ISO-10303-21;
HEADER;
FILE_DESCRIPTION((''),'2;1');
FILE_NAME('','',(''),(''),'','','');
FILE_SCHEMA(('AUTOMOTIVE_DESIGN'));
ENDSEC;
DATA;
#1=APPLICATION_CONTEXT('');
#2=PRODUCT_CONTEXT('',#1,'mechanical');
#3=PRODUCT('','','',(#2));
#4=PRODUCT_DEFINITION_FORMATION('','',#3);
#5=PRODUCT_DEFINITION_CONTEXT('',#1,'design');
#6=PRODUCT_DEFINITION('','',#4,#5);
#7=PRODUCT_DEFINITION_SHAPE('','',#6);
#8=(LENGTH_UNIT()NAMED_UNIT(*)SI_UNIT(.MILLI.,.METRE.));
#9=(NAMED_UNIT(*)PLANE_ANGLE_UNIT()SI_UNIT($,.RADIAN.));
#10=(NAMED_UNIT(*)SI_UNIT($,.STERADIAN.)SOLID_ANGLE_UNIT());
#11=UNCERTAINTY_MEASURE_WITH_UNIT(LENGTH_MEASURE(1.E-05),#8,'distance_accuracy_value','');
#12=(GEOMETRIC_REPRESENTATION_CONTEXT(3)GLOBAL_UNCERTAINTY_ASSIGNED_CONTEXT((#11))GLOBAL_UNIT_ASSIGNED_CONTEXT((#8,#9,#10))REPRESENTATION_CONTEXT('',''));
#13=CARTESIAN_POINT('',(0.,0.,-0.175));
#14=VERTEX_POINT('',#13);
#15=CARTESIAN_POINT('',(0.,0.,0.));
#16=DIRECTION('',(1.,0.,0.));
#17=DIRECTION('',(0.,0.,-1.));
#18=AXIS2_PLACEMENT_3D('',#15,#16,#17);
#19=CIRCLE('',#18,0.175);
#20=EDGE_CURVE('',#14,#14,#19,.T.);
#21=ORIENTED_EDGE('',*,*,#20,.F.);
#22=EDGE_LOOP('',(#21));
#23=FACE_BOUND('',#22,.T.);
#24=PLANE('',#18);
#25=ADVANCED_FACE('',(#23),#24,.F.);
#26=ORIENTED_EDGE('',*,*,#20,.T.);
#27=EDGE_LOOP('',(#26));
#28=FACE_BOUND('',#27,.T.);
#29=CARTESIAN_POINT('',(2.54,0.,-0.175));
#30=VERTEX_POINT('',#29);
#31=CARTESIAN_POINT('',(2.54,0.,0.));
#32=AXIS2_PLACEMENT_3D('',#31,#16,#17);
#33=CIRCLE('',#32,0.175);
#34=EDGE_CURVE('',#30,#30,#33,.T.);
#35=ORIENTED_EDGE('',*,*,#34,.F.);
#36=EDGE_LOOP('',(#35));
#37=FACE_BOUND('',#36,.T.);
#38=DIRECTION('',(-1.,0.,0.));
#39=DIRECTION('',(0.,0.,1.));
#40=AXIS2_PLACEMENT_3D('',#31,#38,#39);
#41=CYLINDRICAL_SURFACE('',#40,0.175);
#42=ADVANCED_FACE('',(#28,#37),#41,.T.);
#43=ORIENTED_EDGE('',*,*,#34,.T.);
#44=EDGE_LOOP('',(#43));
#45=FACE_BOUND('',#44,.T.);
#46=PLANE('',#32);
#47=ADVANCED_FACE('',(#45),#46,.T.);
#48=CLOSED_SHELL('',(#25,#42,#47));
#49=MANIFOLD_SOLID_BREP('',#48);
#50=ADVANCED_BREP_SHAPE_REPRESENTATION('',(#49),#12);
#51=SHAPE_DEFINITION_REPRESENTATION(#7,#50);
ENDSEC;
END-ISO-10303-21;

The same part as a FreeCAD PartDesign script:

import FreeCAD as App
import Part
import Sketcher
from FreeCAD import Vector
Q = App.Units.Quantity

doc = App.newDocument("Part")
body = doc.addObject("PartDesign::Body", "Body")

# Sketch on YZ plane
sketch1 = body.newObject("Sketcher::SketchObject", "Sketch")
sketch1.AttachmentSupport = (doc.getObject("YZ_Plane"), [""])
sketch1.MapMode = "FlatFace"
sketch1.addGeometry(Part.Circle(Vector(0, 0, 0), Vector(0, 0, 1), 0.175), False)
sketch1.addConstraint([
    Sketcher.Constraint("Coincident", 0, 3, -1, 1),
    Sketcher.Constraint("Diameter", 0, 0.35),
])
pad1 = body.newObject("PartDesign::Pad", "Pad")
pad1.Profile = sketch1
pad1.Length = Q("0.1 in")

doc.recompute()
